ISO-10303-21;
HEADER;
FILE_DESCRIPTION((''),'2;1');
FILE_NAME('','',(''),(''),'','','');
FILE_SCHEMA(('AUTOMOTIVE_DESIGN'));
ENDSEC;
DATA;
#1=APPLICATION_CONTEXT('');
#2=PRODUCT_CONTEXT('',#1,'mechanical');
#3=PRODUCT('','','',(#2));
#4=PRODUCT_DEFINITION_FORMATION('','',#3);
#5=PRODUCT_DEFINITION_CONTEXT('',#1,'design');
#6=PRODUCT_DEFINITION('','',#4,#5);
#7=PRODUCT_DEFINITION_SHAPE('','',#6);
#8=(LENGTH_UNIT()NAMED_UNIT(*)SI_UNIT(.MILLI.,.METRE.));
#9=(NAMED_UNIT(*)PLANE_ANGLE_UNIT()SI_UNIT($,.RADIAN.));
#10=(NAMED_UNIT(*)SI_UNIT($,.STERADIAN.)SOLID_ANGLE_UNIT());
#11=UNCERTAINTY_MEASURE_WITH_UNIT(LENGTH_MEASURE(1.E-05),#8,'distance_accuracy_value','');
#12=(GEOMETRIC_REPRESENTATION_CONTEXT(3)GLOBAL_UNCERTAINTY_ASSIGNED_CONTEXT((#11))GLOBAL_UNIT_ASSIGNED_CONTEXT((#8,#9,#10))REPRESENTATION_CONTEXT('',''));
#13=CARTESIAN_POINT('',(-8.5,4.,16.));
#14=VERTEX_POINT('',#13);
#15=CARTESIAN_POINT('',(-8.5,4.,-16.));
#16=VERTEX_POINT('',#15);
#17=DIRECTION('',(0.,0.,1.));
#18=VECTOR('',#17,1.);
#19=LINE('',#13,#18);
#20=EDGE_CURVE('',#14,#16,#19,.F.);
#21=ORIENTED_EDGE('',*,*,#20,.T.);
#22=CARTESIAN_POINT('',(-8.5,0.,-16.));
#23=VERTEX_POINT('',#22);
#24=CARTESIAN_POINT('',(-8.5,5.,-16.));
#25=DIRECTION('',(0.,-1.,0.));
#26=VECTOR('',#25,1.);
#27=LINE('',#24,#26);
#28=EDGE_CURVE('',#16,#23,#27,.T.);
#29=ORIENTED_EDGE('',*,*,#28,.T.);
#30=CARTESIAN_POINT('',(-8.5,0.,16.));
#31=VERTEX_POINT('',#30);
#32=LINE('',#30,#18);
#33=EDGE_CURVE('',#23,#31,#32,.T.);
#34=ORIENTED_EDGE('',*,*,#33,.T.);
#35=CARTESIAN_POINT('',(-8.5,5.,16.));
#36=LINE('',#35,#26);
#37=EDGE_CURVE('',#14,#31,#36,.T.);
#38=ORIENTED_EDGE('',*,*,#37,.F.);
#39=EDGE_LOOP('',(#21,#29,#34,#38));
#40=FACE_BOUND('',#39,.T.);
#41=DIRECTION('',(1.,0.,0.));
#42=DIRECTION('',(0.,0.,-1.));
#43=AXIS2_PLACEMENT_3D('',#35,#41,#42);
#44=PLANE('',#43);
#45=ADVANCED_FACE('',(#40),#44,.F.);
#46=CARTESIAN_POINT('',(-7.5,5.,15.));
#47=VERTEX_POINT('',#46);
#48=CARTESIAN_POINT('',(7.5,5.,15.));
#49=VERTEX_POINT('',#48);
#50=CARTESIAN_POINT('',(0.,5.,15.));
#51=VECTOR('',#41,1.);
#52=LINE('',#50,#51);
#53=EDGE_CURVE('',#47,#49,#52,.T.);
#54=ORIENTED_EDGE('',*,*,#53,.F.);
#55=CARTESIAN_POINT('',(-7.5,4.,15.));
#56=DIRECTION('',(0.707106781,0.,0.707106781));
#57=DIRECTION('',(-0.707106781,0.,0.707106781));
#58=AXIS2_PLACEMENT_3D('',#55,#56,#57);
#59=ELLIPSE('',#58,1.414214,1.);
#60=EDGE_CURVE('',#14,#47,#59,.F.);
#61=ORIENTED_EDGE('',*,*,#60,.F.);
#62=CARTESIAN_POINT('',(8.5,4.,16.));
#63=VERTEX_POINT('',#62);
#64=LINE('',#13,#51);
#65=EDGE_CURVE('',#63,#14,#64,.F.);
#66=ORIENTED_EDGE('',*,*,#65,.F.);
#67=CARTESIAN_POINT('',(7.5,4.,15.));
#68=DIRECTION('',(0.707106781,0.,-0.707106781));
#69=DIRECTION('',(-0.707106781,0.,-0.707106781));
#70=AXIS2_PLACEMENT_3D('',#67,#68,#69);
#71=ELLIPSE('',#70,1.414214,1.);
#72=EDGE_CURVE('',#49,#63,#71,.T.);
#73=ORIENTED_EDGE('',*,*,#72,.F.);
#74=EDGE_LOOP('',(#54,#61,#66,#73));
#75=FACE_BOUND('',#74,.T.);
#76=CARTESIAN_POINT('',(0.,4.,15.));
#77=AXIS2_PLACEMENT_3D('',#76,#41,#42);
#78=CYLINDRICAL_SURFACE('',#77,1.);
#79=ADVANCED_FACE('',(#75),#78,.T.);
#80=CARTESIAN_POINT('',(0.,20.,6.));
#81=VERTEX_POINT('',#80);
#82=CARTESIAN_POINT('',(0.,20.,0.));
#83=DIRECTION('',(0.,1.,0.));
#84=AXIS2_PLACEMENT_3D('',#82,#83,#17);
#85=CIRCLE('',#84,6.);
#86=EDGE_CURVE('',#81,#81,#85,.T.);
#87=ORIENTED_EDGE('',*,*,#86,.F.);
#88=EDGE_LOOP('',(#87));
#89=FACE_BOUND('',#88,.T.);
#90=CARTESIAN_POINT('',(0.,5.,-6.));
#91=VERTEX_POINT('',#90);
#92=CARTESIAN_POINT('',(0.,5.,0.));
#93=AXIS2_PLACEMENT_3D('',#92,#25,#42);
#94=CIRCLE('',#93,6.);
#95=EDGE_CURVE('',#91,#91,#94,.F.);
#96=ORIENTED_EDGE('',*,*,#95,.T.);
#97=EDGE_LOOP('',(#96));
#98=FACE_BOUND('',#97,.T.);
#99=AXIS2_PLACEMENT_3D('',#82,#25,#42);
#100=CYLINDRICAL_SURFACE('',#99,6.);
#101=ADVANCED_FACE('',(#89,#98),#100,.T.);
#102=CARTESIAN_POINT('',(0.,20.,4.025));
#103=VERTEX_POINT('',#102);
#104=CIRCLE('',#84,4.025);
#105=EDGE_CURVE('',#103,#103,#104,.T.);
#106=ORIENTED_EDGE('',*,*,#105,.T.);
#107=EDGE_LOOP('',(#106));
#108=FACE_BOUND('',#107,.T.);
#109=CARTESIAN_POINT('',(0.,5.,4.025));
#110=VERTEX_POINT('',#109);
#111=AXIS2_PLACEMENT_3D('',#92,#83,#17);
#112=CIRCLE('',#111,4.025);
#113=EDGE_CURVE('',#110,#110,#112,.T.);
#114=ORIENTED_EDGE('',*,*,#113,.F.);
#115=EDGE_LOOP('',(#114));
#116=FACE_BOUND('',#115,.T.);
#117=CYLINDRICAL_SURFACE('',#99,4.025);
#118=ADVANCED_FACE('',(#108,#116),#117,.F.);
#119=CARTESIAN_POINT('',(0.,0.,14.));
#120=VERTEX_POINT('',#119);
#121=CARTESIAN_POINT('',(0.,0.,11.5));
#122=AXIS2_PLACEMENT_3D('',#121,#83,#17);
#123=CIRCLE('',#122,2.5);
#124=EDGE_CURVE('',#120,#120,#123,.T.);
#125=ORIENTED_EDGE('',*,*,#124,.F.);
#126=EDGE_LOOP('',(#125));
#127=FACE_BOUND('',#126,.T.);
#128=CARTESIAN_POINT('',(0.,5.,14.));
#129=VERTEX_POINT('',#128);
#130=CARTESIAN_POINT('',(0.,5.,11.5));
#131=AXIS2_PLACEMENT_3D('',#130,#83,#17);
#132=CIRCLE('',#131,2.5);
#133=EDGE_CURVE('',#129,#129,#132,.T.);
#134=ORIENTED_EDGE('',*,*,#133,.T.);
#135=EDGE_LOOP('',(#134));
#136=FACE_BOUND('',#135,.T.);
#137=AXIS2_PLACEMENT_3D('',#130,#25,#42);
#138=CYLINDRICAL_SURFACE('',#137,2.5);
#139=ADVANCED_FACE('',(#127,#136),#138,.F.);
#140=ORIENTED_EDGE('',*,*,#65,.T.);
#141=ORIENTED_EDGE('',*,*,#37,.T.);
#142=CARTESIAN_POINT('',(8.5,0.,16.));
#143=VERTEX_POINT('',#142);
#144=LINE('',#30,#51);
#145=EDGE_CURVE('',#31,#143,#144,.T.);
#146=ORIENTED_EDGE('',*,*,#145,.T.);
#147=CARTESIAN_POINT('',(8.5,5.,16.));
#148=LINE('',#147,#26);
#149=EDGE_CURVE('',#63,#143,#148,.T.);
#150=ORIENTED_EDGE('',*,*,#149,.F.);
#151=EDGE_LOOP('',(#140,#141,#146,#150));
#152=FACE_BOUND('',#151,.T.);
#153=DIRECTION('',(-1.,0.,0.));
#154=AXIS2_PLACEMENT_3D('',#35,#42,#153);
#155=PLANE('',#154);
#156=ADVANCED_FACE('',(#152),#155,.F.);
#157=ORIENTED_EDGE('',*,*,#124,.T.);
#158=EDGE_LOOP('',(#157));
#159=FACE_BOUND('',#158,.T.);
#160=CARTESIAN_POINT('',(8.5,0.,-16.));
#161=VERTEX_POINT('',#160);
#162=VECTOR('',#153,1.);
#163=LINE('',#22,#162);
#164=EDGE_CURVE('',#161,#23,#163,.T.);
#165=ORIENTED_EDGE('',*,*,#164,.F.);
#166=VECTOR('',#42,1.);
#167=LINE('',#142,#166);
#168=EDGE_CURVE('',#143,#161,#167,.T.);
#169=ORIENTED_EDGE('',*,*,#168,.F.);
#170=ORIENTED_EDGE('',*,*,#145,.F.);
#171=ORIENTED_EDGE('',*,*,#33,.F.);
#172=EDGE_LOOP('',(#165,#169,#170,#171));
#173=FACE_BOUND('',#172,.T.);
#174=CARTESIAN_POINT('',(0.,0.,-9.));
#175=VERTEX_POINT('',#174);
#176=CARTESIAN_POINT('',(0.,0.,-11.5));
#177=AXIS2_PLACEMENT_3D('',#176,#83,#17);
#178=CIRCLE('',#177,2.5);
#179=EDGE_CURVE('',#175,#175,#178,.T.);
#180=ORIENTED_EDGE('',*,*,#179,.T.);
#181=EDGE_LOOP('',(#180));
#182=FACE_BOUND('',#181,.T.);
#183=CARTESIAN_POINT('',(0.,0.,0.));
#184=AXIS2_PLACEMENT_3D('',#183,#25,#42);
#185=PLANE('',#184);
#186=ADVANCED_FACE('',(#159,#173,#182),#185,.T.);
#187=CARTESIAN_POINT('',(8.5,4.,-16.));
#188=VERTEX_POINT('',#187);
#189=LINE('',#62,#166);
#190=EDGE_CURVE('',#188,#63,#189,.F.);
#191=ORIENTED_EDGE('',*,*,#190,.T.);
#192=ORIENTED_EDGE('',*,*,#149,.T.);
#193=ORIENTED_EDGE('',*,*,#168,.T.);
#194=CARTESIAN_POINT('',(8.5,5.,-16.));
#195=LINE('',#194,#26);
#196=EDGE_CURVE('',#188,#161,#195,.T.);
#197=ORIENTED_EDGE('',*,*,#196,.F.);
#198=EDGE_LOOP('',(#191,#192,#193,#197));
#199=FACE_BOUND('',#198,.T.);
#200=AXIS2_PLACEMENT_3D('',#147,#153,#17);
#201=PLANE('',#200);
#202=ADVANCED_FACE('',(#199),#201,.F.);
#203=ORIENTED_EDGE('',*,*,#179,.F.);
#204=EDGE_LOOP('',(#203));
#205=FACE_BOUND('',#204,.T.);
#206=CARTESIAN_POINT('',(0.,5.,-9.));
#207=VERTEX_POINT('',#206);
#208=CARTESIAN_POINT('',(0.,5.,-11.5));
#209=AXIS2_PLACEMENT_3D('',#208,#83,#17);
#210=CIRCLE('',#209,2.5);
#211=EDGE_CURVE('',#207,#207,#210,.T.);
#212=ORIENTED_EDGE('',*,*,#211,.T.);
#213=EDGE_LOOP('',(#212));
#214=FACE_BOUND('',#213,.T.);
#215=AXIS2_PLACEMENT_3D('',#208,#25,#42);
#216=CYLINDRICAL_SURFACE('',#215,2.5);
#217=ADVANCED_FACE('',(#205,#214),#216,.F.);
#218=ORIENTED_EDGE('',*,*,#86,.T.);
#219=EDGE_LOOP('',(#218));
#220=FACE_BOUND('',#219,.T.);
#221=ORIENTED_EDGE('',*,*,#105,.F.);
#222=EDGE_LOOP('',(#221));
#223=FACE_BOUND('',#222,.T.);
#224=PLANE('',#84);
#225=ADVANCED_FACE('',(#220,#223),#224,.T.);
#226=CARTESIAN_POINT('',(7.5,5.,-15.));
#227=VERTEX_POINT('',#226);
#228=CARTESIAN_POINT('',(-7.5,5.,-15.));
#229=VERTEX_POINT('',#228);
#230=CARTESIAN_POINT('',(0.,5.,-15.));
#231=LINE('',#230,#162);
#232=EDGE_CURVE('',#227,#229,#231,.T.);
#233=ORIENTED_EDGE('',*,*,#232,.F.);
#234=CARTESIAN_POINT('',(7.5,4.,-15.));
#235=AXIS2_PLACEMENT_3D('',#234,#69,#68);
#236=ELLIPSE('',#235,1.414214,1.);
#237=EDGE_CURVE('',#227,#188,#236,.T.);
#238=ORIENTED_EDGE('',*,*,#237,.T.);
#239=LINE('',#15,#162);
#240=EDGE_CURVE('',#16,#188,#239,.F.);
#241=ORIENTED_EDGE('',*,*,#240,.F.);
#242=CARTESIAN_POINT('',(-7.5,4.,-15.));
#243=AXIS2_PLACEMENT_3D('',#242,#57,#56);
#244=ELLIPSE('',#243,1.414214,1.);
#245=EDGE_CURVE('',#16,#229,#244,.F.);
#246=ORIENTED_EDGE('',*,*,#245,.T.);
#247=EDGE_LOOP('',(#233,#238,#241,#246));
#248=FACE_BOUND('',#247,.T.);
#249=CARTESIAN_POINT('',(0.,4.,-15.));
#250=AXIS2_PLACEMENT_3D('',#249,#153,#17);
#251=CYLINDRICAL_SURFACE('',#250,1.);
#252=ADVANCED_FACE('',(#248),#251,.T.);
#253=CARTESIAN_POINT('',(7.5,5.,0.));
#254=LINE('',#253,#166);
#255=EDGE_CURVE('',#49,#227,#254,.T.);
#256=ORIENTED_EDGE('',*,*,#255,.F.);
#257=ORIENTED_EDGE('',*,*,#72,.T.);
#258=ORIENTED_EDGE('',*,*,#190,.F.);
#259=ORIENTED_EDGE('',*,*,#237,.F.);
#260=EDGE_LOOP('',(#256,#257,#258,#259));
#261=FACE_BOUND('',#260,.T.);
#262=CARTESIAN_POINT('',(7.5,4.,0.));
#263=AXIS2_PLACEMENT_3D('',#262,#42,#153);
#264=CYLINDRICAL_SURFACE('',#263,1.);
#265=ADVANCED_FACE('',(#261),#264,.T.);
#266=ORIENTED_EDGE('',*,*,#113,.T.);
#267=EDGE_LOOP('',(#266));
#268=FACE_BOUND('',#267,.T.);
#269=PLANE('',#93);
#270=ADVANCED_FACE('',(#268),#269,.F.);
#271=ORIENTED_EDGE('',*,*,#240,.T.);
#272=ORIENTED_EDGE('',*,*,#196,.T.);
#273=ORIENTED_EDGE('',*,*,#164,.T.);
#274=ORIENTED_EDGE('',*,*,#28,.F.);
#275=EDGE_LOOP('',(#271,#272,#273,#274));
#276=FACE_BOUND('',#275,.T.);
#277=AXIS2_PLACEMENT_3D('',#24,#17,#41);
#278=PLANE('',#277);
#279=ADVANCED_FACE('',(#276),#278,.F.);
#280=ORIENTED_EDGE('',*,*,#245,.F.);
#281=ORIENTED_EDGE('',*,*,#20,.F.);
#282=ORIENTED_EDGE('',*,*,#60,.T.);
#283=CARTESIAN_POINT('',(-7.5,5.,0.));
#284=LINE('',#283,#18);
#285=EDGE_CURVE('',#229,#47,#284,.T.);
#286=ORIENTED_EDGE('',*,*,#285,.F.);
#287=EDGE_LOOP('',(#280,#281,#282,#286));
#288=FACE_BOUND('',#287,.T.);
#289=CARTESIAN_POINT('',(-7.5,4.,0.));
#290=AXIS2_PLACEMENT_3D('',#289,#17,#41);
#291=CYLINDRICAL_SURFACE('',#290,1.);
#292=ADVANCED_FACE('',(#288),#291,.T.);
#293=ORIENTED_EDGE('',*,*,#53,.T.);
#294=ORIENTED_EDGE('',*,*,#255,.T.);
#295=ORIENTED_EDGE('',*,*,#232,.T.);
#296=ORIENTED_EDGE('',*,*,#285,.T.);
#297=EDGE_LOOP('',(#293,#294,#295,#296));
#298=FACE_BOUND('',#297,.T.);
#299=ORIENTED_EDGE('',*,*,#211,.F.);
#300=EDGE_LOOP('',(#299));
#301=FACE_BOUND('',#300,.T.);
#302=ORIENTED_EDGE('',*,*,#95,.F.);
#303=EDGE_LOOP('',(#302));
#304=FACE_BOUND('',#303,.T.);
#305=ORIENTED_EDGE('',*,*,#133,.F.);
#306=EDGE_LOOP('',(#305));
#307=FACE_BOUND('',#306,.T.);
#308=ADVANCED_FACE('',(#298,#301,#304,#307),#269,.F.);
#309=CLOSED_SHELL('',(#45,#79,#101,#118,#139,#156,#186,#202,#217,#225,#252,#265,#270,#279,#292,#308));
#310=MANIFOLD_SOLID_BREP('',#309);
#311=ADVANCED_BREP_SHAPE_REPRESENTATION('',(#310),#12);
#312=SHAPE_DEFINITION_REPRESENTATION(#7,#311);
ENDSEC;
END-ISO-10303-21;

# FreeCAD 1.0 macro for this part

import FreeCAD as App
import Part
import Sketcher
Q = App.Units.Quantity


def edges_at(feature, points):
    """Names of the edges that pass closest to the given points."""
    edges = feature.Shape.Edges
    near = lambda p: min(range(len(edges)), key=lambda i: edges[i].distToShape(Part.Vertex(*p))[0])
    return sorted({f"Edge{near(p) + 1}" for p in points})

doc = App.newDocument("Part")
params = doc.addObject("Spreadsheet::Sheet", "Params")
for row, (alias, value) in enumerate([
    ("sketch1_diameter", "5 mm"),
    ("sketch1_width", "17 mm"),
    ("sketch1_height", "32 mm"),
    ("pad1_length", "5 mm"),
    ("sketch2_diameter", "12 mm"),
    ("sketch2_diameter2", "8.05 mm"),
    ("pad2_length", "15 mm"),
    ("fillet_radius", "1 mm"),
], start=1):
    params.set(f"A{row}", alias)
    params.set(f"B{row}", "=" + value)
    params.setAlias(f"B{row}", alias)

body = doc.addObject("PartDesign::Body", "Body")

sketch1 = body.newObject("Sketcher::SketchObject", "Sketch")
sketch1.AttachmentSupport = (doc.getObject("XZ_Plane"), [""])
sketch1.MapMode = "FlatFace"
sketch1.addGeometry([
    Part.LineSegment(App.Vector(-8.5, -16, 0), App.Vector(-8.5, 16, 0)),
    Part.LineSegment(App.Vector(-8.5, 16, 0), App.Vector(8.5, 16, 0)),
    Part.LineSegment(App.Vector(8.5, 16, 0), App.Vector(8.5, -16, 0)),
    Part.LineSegment(App.Vector(8.5, -16, 0), App.Vector(-8.5, -16, 0)),
    Part.Circle(App.Vector(0, 11.5, 0), App.Vector(0, 0, 1), 2.5),
    Part.Circle(App.Vector(0, -11.5, 0), App.Vector(0, 0, 1), 2.5),
], False)
sketch1.addConstraint([
    Sketcher.Constraint("Coincident", 0, 2, 1, 1),
    Sketcher.Constraint("Coincident", 1, 2, 2, 1),
    Sketcher.Constraint("Coincident", 2, 2, 3, 1),
    Sketcher.Constraint("Coincident", 3, 2, 0, 1),
    Sketcher.Constraint("Vertical", 0),
    Sketcher.Constraint("Horizontal", 1),
    Sketcher.Constraint("Vertical", 2),
    Sketcher.Constraint("Horizontal", 3),
    Sketcher.Constraint("Equal", 4, 5),
    Sketcher.Constraint("Symmetric", 4, 3, 5, 3, -1, 1),
    Sketcher.Constraint("Symmetric", 0, 2, 2, 2, -1, 1),
    Sketcher.Constraint("PointOnObject", 4, 3, -2),
    Sketcher.Constraint("Diameter", 4, Q("5 mm")),
    Sketcher.Constraint("DistanceX", 1, 1, 1, 2, Q("17 mm")),
    Sketcher.Constraint("DistanceY", 0, 1, 0, 2, Q("32 mm")),
    Sketcher.Constraint("DistanceY", 5, 3, 4, 3, Q("23 mm")),
])
sketch1.setExpression("Constraints[12]", "Params.sketch1_diameter")
sketch1.setExpression("Constraints[13]", "Params.sketch1_width")
sketch1.setExpression("Constraints[14]", "Params.sketch1_height")
pad1 = body.newObject("PartDesign::Pad", "Pad")
pad1.Profile = sketch1
pad1.setExpression("Length", "Params.pad1_length")
pad1.Reversed = True

sketch2 = body.newObject("Sketcher::SketchObject", "Sketch001")
sketch2.AttachmentSupport = (doc.getObject("XZ_Plane"), [""])
sketch2.MapMode = "FlatFace"
sketch2.AttachmentOffset = App.Placement(App.Vector(0, 0, -5), App.Rotation())
sketch2.addGeometry([
    Part.Circle(App.Vector(0, 0, 0), App.Vector(0, 0, 1), 6),
    Part.Circle(App.Vector(0, 0, 0), App.Vector(0, 0, 1), 4),
], False)
sketch2.addConstraint([
    Sketcher.Constraint("Coincident", 0, 3, -1, 1),
    Sketcher.Constraint("Coincident", 1, 3, -1, 1),
    Sketcher.Constraint("Diameter", 0, Q("12 mm")),
    Sketcher.Constraint("Diameter", 1, Q("8.05 mm")),
])
sketch2.setExpression("Constraints[2]", "Params.sketch2_diameter")
sketch2.setExpression("Constraints[3]", "Params.sketch2_diameter2")
pad2 = body.newObject("PartDesign::Pad", "Pad001")
pad2.Profile = sketch2
pad2.setExpression("Length", "Params.pad2_length")
pad2.Reversed = True
doc.recompute()

fillet = body.newObject("PartDesign::Fillet", "Fillet")
fillet.Base = (pad2, edges_at(pad2, [
    (-8.5, 5, 0),
    (0, 5, 16),
    (8.5, 5, 0),
    (0, 5, -16),
]))
fillet.setExpression("Radius", "Params.fillet_radius")

doc.recompute()
